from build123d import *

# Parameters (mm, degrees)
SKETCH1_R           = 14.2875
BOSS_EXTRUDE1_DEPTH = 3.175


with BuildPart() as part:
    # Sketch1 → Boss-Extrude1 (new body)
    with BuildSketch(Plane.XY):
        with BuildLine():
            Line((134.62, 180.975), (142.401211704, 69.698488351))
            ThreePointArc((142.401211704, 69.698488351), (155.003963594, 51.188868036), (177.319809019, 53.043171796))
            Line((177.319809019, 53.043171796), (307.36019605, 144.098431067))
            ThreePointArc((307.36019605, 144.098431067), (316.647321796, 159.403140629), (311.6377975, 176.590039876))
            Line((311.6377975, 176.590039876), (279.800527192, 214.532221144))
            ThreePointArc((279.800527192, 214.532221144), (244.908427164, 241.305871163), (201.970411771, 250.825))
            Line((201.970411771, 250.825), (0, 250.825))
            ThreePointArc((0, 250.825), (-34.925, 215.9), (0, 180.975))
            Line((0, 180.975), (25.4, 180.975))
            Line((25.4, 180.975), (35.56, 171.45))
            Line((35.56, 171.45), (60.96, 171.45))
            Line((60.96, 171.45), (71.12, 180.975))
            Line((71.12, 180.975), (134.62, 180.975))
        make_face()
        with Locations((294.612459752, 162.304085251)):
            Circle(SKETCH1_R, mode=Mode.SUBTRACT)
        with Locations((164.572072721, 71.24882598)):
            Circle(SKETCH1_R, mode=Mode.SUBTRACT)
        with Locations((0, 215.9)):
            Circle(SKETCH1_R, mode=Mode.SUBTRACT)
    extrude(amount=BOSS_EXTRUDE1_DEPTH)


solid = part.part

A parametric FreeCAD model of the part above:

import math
import FreeCAD as App
import Part
import Sketcher
Q = App.Units.Quantity

doc = App.newDocument("Part")
body = doc.addObject("PartDesign::Body", "Body")

# Sketch on XY plane
sketch1 = doc.addObject("Sketcher::SketchObject", "Sketch")
body.addObject(sketch1)
sketch1.AttachmentSupport = (doc.XY_Plane, [""])
sketch1.MapMode = "FlatFace"
sketch1.addGeometry(Part.LineSegment(App.Vector(134.62, 180.975, 0), App.Vector(142.401212, 69.698488, 0)), False)
sketch1.addGeometry(Part.ArcOfCircle(Part.Circle(App.Vector(164.572073, 71.248826, 0), App.Vector(0, 0, 1), 22.225), math.radians(-176), math.radians(-55)), False)
sketch1.addGeometry(Part.LineSegment(App.Vector(177.319809, 53.043172, 0), App.Vector(307.360196, 144.098431, 0)), False)
sketch1.addGeometry(Part.ArcOfCircle(Part.Circle(App.Vector(294.61246, 162.304085, 0), App.Vector(0, 0, 1), 22.225), math.radians(-55), math.radians(40)), False)
sketch1.addGeometry(Part.LineSegment(App.Vector(311.637797, 176.59004, 0), App.Vector(279.800527, 214.532221, 0)), False)
sketch1.addGeometry(Part.ArcOfCircle(Part.Circle(App.Vector(201.970412, 149.225, 0), App.Vector(0, 0, 1), 101.6), math.radians(40), math.radians(90)), False)
sketch1.addGeometry(Part.LineSegment(App.Vector(201.970412, 250.825, 0), App.Vector(0, 250.825, 0)), False)
sketch1.addGeometry(Part.ArcOfCircle(Part.Circle(App.Vector(0, 215.9, 0), App.Vector(0, 0, 1), 34.925), math.radians(90), math.radians(270)), False)
sketch1.addGeometry(Part.LineSegment(App.Vector(0, 180.975, 0), App.Vector(25.4, 180.975, 0)), False)
sketch1.addGeometry(Part.LineSegment(App.Vector(25.4, 180.975, 0), App.Vector(35.56, 171.45, 0)), False)
sketch1.addGeometry(Part.LineSegment(App.Vector(35.56, 171.45, 0), App.Vector(60.96, 171.45, 0)), False)
sketch1.addGeometry(Part.LineSegment(App.Vector(60.96, 171.45, 0), App.Vector(71.12, 180.975, 0)), False)
sketch1.addGeometry(Part.LineSegment(App.Vector(71.12, 180.975, 0), App.Vector(134.62, 180.975, 0)), False)
sketch1.addGeometry(Part.Circle(App.Vector(164.572073, 71.248826, 0), App.Vector(0, 0, 1), 14.2875), False)
sketch1.addGeometry(Part.Circle(App.Vector(0, 215.9, 0), App.Vector(0, 0, 1), 14.2875), False)
sketch1.addGeometry(Part.Circle(App.Vector(294.61246, 162.304085, 0), App.Vector(0, 0, 1), 14.2875), False)
sketch1.addConstraint(Sketcher.Constraint("Tangent", 0, 2, 1, 1))
sketch1.addConstraint(Sketcher.Constraint("Tangent", 1, 2, 2, 1))
sketch1.addConstraint(Sketcher.Constraint("Tangent", 2, 2, 3, 1))
sketch1.addConstraint(Sketcher.Constraint("Tangent", 3, 2, 4, 1))
sketch1.addConstraint(Sketcher.Constraint("Tangent", 4, 2, 5, 1))
sketch1.addConstraint(Sketcher.Constraint("Tangent", 5, 2, 6, 1))
sketch1.addConstraint(Sketcher.Constraint("Tangent", 6, 2, 7, 1))
sketch1.addConstraint(Sketcher.Constraint("Tangent", 7, 2, 8, 1))
sketch1.addConstraint(Sketcher.Constraint("Coincident", 8, 2, 9, 1))
sketch1.addConstraint(Sketcher.Constraint("Coincident", 9, 2, 10, 1))
sketch1.addConstraint(Sketcher.Constraint("Coincident", 10, 2, 11, 1))
sketch1.addConstraint(Sketcher.Constraint("Coincident", 11, 2, 12, 1))
sketch1.addConstraint(Sketcher.Constraint("Coincident", 12, 2, 0, 1))
sketch1.addConstraint(Sketcher.Constraint("Horizontal", 6))
sketch1.addConstraint(Sketcher.Constraint("Horizontal", 8))
sketch1.addConstraint(Sketcher.Constraint("Horizontal", 10))
sketch1.addConstraint(Sketcher.Constraint("Horizontal", 12))
sketch1.addConstraint(Sketcher.Constraint("Coincident", 13, 3, 1, 3))
sketch1.addConstraint(Sketcher.Constraint("Coincident", 14, 3, 7, 3))
sketch1.addConstraint(Sketcher.Constraint("Coincident", 15, 3, 3, 3))
sketch1.addConstraint(Sketcher.Constraint("Equal", 1, 3))
sketch1.addConstraint(Sketcher.Constraint("Equal", 13, 14))
sketch1.addConstraint(Sketcher.Constraint("Equal", 14, 15))
sketch1.addConstraint(Sketcher.Constraint("PointOnObject", 7, 3, -2))
sketch1.addConstraint(Sketcher.Constraint("Horizontal", 8, 2, 11, 2))
sketch1.addConstraint(Sketcher.Constraint("Equal", 8, 10))
sketch1.addConstraint(Sketcher.Constraint("Equal", 9, 11))
sketch1.addConstraint(Sketcher.Constraint("Radius", 5, Q("4 in")))
sketch1.addConstraint(Sketcher.Constraint("DistanceX", 8, 1, 8, 2, Q("1 in")))
sketch1.addConstraint(Sketcher.Constraint("Diameter", 13, Q("1.125 in")))
sketch1.addConstraint(Sketcher.Constraint("DistanceX", 12, 1, 12, 2, Q("2.5 in")))
sketch1.addConstraint(Sketcher.Constraint("Angle", 0, Q("-86 deg")))
sketch1.addConstraint(Sketcher.Constraint("Angle", 2, Q("35 deg")))
sketch1.addConstraint(Sketcher.Constraint("Angle", 4, Q("130 deg")))
sketch1.addConstraint(Sketcher.Constraint("Radius", 1, Q("0.875 in")))
sketch1.addConstraint(Sketcher.Constraint("Radius", 7, Q("1.375 in")))
sketch1.addConstraint(Sketcher.Constraint("DistanceY", -1, 1, 7, 3, Q("8.5 in")))
sketch1.addConstraint(Sketcher.Constraint("DistanceX", -1, 1, 9, 2, Q("1.4 in")))
sketch1.addConstraint(Sketcher.Constraint("Distance", 2, Q("6.25 in")))
sketch1.addConstraint(Sketcher.Constraint("Distance", 4, Q("1.95 in")))
sketch1.addConstraint(Sketcher.Constraint("DistanceY", -1, 1, 9, 2, Q("6.75 in")))
pad1 = doc.addObject("PartDesign::Pad", "Pad")
body.addObject(pad1)
pad1.Profile = sketch1
pad1.Length = Q("0.125 in")

doc.recompute()
